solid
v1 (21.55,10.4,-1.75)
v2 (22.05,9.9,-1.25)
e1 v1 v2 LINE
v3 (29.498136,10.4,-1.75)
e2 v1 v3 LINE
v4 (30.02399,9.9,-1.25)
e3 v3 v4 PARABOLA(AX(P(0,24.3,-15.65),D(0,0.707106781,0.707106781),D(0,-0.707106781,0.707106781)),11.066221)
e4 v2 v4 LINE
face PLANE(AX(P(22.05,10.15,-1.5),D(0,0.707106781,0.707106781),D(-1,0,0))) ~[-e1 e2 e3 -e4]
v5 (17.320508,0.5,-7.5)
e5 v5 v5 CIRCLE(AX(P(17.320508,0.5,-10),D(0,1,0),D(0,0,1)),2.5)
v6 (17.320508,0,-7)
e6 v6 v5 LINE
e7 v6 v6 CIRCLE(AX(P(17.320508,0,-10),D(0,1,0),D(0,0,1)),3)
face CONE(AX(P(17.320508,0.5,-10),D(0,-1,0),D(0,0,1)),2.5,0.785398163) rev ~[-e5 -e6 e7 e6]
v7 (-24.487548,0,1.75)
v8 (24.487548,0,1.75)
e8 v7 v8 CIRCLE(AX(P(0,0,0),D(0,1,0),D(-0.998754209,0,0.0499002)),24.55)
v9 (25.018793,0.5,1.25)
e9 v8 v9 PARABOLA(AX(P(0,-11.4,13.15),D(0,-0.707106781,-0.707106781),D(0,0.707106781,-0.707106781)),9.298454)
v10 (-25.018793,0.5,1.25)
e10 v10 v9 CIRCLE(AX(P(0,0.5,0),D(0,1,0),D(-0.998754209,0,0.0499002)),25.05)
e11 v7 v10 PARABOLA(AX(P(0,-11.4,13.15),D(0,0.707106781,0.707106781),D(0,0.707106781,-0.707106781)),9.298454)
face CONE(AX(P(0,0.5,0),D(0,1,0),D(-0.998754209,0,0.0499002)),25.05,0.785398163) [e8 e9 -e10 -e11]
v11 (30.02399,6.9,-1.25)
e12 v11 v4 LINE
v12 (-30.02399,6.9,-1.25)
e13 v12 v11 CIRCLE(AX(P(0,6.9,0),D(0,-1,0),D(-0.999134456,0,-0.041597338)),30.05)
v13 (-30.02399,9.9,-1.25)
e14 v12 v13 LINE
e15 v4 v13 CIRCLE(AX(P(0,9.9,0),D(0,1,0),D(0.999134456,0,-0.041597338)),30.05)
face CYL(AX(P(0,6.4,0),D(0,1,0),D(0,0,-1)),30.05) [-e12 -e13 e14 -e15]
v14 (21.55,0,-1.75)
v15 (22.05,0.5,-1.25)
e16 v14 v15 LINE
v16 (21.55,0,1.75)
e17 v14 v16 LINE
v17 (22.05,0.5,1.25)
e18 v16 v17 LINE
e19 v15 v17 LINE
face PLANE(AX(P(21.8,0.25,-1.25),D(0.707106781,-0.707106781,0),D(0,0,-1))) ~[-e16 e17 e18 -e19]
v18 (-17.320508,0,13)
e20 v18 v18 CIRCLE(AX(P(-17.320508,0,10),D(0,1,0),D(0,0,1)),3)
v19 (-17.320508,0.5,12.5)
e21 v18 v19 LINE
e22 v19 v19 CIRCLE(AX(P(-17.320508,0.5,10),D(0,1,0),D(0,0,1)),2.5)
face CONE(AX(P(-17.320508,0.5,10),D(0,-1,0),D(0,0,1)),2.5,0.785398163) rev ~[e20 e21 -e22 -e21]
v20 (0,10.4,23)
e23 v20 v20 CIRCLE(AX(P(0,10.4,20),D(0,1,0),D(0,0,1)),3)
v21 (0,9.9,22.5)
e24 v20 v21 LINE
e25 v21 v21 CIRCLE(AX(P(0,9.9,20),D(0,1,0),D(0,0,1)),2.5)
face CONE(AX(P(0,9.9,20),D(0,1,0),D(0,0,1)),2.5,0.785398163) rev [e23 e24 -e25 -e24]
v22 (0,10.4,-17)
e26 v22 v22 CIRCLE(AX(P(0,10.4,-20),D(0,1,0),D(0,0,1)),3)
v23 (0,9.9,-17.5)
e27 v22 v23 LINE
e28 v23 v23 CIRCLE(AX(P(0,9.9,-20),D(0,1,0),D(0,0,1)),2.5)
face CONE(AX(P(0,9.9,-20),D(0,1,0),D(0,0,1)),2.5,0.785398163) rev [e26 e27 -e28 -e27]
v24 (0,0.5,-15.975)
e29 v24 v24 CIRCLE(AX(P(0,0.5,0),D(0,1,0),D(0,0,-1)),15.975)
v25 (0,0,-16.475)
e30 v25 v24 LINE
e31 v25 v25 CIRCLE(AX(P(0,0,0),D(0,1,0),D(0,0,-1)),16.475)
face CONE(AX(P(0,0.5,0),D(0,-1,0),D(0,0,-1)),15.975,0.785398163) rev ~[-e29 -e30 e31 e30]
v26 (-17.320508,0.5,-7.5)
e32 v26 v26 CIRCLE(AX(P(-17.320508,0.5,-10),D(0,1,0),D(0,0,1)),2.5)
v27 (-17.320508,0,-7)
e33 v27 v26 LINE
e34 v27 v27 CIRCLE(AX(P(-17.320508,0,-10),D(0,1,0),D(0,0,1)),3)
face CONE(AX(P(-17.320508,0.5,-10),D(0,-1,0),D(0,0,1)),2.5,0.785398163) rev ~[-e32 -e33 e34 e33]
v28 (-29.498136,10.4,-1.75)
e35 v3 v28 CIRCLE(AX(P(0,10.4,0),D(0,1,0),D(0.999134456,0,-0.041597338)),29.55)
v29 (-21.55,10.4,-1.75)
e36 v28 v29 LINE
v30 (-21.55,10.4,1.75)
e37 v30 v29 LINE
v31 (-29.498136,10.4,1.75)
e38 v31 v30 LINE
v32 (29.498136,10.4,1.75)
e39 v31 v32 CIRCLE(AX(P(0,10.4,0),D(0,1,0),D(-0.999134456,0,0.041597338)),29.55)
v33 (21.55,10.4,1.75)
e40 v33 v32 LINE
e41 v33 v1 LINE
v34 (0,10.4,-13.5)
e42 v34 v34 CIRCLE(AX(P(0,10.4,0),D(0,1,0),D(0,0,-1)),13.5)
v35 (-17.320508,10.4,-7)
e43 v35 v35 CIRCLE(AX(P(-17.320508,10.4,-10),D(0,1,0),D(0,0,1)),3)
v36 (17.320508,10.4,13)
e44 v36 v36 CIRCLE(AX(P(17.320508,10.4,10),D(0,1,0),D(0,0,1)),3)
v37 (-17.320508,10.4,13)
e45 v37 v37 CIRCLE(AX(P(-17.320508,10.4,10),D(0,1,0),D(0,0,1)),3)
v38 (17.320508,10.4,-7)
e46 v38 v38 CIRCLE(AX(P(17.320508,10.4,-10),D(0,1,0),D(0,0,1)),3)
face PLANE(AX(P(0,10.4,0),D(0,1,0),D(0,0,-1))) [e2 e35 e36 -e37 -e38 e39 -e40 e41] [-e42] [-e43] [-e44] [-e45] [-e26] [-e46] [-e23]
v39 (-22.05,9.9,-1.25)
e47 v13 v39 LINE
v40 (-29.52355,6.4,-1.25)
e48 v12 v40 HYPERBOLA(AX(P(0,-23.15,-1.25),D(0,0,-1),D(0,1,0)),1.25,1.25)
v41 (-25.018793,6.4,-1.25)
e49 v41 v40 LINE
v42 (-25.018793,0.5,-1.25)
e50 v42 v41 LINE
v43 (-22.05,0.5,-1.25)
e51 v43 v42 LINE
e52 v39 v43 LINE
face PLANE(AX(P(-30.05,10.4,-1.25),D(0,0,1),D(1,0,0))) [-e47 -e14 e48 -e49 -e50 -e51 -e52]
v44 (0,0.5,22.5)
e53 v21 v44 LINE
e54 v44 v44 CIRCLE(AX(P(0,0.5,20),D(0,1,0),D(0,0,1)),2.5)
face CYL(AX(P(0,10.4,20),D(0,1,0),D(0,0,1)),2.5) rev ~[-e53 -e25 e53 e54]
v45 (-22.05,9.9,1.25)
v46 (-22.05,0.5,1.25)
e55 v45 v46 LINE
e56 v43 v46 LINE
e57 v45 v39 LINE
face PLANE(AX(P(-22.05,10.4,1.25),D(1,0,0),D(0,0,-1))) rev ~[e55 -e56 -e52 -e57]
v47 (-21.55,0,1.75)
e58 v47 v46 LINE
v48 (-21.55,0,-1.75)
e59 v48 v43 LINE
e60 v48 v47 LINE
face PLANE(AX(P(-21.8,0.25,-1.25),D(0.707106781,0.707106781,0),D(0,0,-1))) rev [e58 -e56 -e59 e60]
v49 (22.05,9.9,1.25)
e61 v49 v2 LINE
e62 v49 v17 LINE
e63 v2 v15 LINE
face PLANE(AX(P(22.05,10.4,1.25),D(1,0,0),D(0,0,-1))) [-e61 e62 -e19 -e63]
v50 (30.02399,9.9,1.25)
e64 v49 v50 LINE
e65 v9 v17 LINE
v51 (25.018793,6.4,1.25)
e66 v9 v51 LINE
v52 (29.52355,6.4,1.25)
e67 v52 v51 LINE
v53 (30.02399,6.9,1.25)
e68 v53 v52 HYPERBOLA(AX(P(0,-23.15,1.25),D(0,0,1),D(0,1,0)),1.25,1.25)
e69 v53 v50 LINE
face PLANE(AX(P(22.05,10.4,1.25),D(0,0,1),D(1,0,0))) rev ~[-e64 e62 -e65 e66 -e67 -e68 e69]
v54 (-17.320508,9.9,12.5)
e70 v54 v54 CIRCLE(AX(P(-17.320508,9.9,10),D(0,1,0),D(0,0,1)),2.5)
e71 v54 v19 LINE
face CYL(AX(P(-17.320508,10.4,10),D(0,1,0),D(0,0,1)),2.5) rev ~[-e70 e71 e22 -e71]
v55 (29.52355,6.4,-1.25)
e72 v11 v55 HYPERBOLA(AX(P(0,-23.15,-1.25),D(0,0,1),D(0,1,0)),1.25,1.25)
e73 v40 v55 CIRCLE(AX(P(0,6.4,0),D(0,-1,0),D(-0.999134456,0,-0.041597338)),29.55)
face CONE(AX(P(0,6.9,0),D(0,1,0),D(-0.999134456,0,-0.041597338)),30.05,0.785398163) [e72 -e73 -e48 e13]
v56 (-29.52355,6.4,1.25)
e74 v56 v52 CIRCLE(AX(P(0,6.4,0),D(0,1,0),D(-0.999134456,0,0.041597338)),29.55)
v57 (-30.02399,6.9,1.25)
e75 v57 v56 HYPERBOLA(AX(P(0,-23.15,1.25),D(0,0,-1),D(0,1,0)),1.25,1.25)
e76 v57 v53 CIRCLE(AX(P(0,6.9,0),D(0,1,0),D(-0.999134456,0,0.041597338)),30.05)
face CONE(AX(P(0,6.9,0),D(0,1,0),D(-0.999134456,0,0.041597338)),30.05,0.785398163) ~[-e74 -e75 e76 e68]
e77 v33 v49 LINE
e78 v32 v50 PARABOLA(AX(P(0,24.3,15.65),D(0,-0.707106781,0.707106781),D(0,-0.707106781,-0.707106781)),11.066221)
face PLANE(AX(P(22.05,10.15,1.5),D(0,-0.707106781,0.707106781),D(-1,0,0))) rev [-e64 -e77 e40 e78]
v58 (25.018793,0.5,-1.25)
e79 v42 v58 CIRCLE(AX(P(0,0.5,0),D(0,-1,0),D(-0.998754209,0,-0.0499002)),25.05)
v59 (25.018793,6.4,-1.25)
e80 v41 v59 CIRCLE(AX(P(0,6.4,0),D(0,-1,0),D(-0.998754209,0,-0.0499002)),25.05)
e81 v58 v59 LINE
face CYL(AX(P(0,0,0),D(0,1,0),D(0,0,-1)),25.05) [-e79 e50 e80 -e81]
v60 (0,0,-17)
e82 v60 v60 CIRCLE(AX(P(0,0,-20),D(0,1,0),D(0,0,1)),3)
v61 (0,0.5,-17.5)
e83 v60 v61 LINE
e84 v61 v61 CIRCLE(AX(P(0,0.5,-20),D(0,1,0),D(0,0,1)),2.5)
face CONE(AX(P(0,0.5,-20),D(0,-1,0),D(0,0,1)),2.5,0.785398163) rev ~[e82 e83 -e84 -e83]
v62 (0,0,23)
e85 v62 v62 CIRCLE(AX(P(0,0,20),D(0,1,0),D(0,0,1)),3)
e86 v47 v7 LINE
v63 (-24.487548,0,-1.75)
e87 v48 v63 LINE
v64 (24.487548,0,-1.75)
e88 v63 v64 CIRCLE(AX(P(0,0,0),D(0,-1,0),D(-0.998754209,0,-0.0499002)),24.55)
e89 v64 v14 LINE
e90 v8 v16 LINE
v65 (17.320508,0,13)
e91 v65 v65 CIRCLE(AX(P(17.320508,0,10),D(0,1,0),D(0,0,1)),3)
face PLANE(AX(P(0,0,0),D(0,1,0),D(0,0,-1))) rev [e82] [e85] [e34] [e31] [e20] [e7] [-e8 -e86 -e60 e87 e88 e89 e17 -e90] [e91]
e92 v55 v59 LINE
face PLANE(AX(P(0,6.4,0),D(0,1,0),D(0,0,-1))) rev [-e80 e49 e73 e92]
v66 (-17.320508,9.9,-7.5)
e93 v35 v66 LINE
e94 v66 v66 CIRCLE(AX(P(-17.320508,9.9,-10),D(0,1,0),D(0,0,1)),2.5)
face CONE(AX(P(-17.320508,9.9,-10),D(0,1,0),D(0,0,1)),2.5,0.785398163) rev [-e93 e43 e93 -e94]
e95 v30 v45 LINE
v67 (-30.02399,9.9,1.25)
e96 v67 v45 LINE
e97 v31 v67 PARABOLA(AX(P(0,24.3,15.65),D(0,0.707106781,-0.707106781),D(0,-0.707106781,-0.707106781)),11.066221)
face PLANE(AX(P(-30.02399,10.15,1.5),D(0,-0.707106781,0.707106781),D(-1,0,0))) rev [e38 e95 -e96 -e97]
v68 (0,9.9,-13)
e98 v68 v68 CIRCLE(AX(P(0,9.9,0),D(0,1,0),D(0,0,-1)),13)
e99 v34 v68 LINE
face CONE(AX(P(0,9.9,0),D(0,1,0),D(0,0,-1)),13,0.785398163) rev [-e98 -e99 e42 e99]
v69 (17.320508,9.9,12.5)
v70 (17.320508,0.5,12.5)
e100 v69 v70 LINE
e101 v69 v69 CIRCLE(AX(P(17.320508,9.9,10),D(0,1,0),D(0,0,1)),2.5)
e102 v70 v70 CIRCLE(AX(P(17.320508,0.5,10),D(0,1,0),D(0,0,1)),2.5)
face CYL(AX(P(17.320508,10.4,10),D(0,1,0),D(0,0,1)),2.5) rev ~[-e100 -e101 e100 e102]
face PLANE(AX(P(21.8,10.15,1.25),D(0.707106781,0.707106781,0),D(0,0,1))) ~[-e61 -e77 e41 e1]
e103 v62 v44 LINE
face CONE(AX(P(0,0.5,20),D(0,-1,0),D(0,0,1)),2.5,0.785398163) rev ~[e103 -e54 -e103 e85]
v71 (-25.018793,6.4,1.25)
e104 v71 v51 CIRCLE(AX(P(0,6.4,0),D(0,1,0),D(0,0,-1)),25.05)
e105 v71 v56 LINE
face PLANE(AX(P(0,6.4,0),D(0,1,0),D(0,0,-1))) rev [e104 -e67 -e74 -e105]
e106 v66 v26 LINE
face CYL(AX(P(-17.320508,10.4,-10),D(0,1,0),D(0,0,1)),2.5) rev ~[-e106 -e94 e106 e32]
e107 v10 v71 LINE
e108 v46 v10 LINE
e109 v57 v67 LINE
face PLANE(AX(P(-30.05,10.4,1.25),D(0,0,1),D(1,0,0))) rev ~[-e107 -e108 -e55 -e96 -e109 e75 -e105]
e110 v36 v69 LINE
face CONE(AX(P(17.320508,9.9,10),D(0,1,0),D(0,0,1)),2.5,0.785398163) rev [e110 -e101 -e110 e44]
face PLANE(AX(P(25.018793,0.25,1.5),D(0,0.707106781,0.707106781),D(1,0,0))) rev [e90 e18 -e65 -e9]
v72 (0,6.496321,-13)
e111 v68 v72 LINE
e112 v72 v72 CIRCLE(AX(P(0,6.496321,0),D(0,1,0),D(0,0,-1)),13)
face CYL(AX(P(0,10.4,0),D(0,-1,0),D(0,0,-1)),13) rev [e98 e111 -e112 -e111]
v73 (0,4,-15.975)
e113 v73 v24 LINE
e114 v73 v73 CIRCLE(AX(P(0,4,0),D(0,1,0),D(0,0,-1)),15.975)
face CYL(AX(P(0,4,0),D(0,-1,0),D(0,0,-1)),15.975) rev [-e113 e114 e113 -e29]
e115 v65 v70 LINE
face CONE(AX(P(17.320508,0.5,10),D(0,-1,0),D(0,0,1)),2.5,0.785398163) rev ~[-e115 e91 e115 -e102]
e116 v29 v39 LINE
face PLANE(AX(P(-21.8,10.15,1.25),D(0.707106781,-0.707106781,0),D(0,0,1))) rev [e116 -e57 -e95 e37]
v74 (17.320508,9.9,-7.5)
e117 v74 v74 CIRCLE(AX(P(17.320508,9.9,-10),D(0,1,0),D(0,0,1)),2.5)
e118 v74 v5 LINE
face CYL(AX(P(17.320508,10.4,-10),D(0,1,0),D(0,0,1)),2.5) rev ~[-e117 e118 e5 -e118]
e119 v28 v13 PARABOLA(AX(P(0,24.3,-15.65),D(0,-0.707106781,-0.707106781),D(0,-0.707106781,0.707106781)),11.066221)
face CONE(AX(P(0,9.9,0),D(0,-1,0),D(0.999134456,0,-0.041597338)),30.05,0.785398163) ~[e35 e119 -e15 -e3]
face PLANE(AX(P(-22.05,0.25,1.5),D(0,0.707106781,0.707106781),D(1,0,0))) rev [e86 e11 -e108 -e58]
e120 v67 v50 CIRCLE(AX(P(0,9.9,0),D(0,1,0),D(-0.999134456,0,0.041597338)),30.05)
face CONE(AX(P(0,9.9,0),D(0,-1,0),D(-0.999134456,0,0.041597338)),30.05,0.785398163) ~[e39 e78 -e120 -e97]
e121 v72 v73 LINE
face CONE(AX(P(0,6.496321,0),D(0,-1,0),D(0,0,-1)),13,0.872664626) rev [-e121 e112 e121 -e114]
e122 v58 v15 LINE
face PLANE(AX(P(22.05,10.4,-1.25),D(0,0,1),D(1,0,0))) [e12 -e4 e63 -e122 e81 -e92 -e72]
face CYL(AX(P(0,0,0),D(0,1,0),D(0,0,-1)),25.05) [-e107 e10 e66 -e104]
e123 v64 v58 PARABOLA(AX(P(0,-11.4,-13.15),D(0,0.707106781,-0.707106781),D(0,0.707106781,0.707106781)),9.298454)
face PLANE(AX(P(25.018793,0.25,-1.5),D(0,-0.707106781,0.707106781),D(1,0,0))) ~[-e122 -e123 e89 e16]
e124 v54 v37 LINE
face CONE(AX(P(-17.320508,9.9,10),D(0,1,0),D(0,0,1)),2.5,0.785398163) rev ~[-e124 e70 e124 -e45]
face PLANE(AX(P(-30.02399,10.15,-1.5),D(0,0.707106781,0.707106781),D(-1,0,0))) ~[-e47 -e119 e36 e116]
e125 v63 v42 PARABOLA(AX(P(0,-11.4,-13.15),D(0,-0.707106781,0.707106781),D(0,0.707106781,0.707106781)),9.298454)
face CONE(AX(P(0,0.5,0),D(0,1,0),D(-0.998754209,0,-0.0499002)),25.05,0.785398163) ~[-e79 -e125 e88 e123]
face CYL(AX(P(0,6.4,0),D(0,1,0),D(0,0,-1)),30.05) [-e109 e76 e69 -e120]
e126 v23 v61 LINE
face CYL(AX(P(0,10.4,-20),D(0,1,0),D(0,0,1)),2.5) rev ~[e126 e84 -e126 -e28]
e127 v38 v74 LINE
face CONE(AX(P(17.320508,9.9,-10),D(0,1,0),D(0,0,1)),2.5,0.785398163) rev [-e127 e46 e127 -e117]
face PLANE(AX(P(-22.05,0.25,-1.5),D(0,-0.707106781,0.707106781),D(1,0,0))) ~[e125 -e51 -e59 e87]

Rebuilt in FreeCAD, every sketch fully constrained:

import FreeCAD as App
import Part
import Sketcher
from FreeCAD import Vector
Q = App.Units.Quantity


def edges_at(feature, points):
    """Names of the edges that pass closest to the given points."""
    edges = feature.Shape.Edges
    near = lambda p: min(range(len(edges)), key=lambda i: edges[i].distToShape(Part.Vertex(*p))[0])
    return sorted({f"Edge{near(p) + 1}" for p in points})


def add_polygon(sketch, points):
    """Adds a closed chain of lines whose ends are joined by coincident constraints."""
    first, n = sketch.GeometryCount, len(points)
    for a, b in zip(points, points[1:] + points[:1]):
        sketch.addGeometry(Part.LineSegment(App.Vector(*a, 0), App.Vector(*b, 0)), False)
    for i in range(n):
        sketch.addConstraint(Sketcher.Constraint("Coincident", first + i, 2, first + (i + 1) % n, 1))

doc = App.newDocument("Part")
params = doc.addObject("Spreadsheet::Sheet", "Params")
for row, (alias, value) in enumerate([
    ("sketch1_width", "5 mm"),
    ("sketch1_height", "4 mm"),
    ("sketch1_height2", "6.4 mm"),
    ("sketch1_width2", "17.05 mm"),
    ("revolution_angle", "360 deg"),
    ("sketch2_diameter", "5 mm"),
    ("sketch3_width", "8 mm"),
    ("sketch3_height", "2.5 mm"),
    ("chamfer_size", "0.5 mm"),
], start=1):
    params.set(f"A{row}", alias)
    params.set(f"B{row}", "=" + value)
    params.setAlias(f"B{row}", alias)

body = doc.addObject("PartDesign::Body", "Body")

sketch1 = doc.addObject("Sketcher::SketchObject", "Sketch")
body.addObject(sketch1)
sketch1.AttachmentSupport = (doc.XY_Plane, [""])
sketch1.MapMode = "FlatFace"
add_polygon(sketch1, [(-25.05, 0), (-15.975, 0), (-15.975, 4), (-13, 6.496321), (-13, 10.4), (-30.05, 10.4), (-30.05, 6.4), (-25.05, 6.4)])
sketch1.addConstraint([
    Sketcher.Constraint("Horizontal", 0),
    Sketcher.Constraint("Vertical", 1),
    Sketcher.Constraint("Vertical", 3),
    Sketcher.Constraint("Horizontal", 4),
    Sketcher.Constraint("Vertical", 5),
    Sketcher.Constraint("Horizontal", 6),
    Sketcher.Constraint("Vertical", 7),
    Sketcher.Constraint("PointOnObject", 0, 2, -1),
    Sketcher.Constraint("Equal", 1, 5),
    Sketcher.Constraint("DistanceX", 6, 1, 6, 2, Q("5 mm")),
    Sketcher.Constraint("DistanceY", 1, 1, 1, 2, Q("4 mm")),
    Sketcher.Constraint("Angle", 2, Q("40 deg")),
    Sketcher.Constraint("DistanceY", 7, 2, 7, 1, Q("6.4 mm")),
    Sketcher.Constraint("DistanceX", 2, 2, -1, 1, Q("13 mm")),
    Sketcher.Constraint("DistanceX", 4, 2, 4, 1, Q("17.05 mm")),
    Sketcher.Constraint("DistanceX", 0, 1, 0, 2, Q("9.075 mm")),
])
sketch1.setExpression("Constraints[17]", "Params.sketch1_width")
sketch1.setExpression("Constraints[18]", "Params.sketch1_height")
sketch1.setExpression("Constraints[20]", "Params.sketch1_height2")
sketch1.setExpression("Constraints[22]", "Params.sketch1_width2")
revolution = doc.addObject("PartDesign::Revolution", "Revolution")
body.addObject(revolution)
revolution.Profile = sketch1
revolution.ReferenceAxis = (sketch1, ["V_Axis"])
revolution.setExpression("Angle", "Params.revolution_angle")

sketch2 = doc.addObject("Sketcher::SketchObject", "Sketch001")
body.addObject(sketch2)
sketch2.AttachmentSupport = (doc.XZ_Plane, [""])
sketch2.MapMode = "FlatFace"
sketch2.AttachmentOffset = App.Placement(Vector(0, 0, -10.4), App.Rotation())
sketch2.addGeometry([
    Part.Circle(Vector(0, -20, 0), Vector(0, 0, 1), 2.5),
    Part.Circle(Vector(17.320508, -10, 0), Vector(0, 0, 1), 2.5),
    Part.Circle(Vector(17.320508, 10, 0), Vector(0, 0, 1), 2.5),
    Part.Circle(Vector(0, 20, 0), Vector(0, 0, 1), 2.5),
    Part.Circle(Vector(-17.320508, 10, 0), Vector(0, 0, 1), 2.5),
    Part.Circle(Vector(-17.320508, -10, 0), Vector(0, 0, 1), 2.5),
], False)
sketch2.addConstraint([
    Sketcher.Constraint("Equal", 0, 1),
    Sketcher.Constraint("Equal", 1, 2),
    Sketcher.Constraint("Equal", 2, 3),
    Sketcher.Constraint("Equal", 3, 4),
    Sketcher.Constraint("Equal", 4, 5),
    Sketcher.Constraint("Symmetric", 0, 3, 3, 3, -1, 1),
    Sketcher.Constraint("Symmetric", 1, 3, 4, 3, -1, 1),
    Sketcher.Constraint("Symmetric", 2, 3, 5, 3, -1, 1),
    Sketcher.Constraint("Symmetric", 2, 3, 4, 3, -2),
    Sketcher.Constraint("PointOnObject", 0, 3, -2),
    Sketcher.Constraint("Diameter", 0, Q("5 mm")),
    Sketcher.Constraint("DistanceY", 0, 3, -1, 1, Q("20 mm")),
    Sketcher.Constraint("DistanceY", 1, 3, -1, 1, Q("10 mm")),
    Sketcher.Constraint("DistanceX", -1, 1, 1, 3, Q("17.320508 mm")),
])
sketch2.setExpression("Constraints[10]", "Params.sketch2_diameter")
pocket1 = doc.addObject("PartDesign::Pocket", "Pocket")
body.addObject(pocket1)
pocket1.Profile = sketch2
pocket1.Type = "ThroughAll"
pocket1.Reversed = True

sketch3 = doc.addObject("Sketcher::SketchObject", "Sketch002")
body.addObject(sketch3)
sketch3.AttachmentSupport = (doc.XZ_Plane, [""])
sketch3.MapMode = "FlatFace"
sketch3.AttachmentOffset = App.Placement(Vector(0, 0, -10.4), App.Rotation())
add_polygon(sketch3, [(-30.05, -1.25), (-30.05, 1.25), (-22.05, 1.25), (-22.05, -1.25)])
add_polygon(sketch3, [(22.05, -1.25), (22.05, 1.25), (30.05, 1.25), (30.05, -1.25)])
sketch3.addConstraint([
    Sketcher.Constraint("Vertical", 0),
    Sketcher.Constraint("Horizontal", 1),
    Sketcher.Constraint("Vertical", 2),
    Sketcher.Constraint("Horizontal", 3),
    Sketcher.Constraint("Vertical", 4),
    Sketcher.Constraint("Horizontal", 5),
    Sketcher.Constraint("Vertical", 6),
    Sketcher.Constraint("Horizontal", 7),
    Sketcher.Constraint("Symmetric", 2, 2, 4, 2, -1, 1),
    Sketcher.Constraint("Symmetric", 0, 2, 6, 2, -1, 1),
    Sketcher.Constraint("Horizontal", 1, 2, 4, 2),
    Sketcher.Constraint("DistanceX", 1, 1, 1, 2, Q("8 mm")),
    Sketcher.Constraint("DistanceY", 0, 1, 0, 2, Q("2.5 mm")),
    Sketcher.Constraint("DistanceX", 1, 2, 4, 2, Q("44.1 mm")),
])
sketch3.setExpression("Constraints[19]", "Params.sketch3_width")
sketch3.setExpression("Constraints[20]", "Params.sketch3_height")
pocket2 = doc.addObject("PartDesign::Pocket", "Pocket001")
body.addObject(pocket2)
pocket2.Profile = sketch3
pocket2.Type = "ThroughAll"
pocket2.Reversed = True
doc.recompute()

chamfer = doc.addObject("PartDesign::Chamfer", "Chamfer")
body.addObject(chamfer)
chamfer.Base = (pocket2, edges_at(pocket2, [
    (0, 0, 15.975),
    (0, 0, -22.5),
    (0, 10.4, -22.5),
    (-17.321, 0, -12.5),
    (-17.321, 10.4, -12.5),
    (-17.321, 0, 7.5),
    (-17.321, 10.4, 7.5),
    (0, 0, 17.5),
    (0, 10.4, 17.5),
    (17.321, 0, 7.5),
    (17.321, 10.4, 7.5),
    (17.321, 0, -12.5),
    (17.321, 10.4, -12.5),
    (0, 10.4, 30.05),
    (0, 10.4, -30.05),
    (26.037, 10.4, 1.25),
    (26.037, 10.4, -1.25),
    (-26.037, 10.4, -1.25),
    (-26.037, 10.4, 1.25),
    (0, 6.4, 30.05),
    (0, 6.4, -30.05),
    (0, 0, 25.05),
    (0, 0, -25.05),
    (-23.534, 0, -1.25),
    (-22.05, 0, 0),
    (-23.534, 0, 1.25),
    (-22.05, 10.4, 0),
    (0, 10.4, 13),
    (23.534, 0, 1.25),
    (22.05, 0, 0),
    (23.534, 0, -1.25),
    (22.05, 10.4, 0),
]))
chamfer.setExpression("Size", "Params.chamfer_size")

doc.recompute()
